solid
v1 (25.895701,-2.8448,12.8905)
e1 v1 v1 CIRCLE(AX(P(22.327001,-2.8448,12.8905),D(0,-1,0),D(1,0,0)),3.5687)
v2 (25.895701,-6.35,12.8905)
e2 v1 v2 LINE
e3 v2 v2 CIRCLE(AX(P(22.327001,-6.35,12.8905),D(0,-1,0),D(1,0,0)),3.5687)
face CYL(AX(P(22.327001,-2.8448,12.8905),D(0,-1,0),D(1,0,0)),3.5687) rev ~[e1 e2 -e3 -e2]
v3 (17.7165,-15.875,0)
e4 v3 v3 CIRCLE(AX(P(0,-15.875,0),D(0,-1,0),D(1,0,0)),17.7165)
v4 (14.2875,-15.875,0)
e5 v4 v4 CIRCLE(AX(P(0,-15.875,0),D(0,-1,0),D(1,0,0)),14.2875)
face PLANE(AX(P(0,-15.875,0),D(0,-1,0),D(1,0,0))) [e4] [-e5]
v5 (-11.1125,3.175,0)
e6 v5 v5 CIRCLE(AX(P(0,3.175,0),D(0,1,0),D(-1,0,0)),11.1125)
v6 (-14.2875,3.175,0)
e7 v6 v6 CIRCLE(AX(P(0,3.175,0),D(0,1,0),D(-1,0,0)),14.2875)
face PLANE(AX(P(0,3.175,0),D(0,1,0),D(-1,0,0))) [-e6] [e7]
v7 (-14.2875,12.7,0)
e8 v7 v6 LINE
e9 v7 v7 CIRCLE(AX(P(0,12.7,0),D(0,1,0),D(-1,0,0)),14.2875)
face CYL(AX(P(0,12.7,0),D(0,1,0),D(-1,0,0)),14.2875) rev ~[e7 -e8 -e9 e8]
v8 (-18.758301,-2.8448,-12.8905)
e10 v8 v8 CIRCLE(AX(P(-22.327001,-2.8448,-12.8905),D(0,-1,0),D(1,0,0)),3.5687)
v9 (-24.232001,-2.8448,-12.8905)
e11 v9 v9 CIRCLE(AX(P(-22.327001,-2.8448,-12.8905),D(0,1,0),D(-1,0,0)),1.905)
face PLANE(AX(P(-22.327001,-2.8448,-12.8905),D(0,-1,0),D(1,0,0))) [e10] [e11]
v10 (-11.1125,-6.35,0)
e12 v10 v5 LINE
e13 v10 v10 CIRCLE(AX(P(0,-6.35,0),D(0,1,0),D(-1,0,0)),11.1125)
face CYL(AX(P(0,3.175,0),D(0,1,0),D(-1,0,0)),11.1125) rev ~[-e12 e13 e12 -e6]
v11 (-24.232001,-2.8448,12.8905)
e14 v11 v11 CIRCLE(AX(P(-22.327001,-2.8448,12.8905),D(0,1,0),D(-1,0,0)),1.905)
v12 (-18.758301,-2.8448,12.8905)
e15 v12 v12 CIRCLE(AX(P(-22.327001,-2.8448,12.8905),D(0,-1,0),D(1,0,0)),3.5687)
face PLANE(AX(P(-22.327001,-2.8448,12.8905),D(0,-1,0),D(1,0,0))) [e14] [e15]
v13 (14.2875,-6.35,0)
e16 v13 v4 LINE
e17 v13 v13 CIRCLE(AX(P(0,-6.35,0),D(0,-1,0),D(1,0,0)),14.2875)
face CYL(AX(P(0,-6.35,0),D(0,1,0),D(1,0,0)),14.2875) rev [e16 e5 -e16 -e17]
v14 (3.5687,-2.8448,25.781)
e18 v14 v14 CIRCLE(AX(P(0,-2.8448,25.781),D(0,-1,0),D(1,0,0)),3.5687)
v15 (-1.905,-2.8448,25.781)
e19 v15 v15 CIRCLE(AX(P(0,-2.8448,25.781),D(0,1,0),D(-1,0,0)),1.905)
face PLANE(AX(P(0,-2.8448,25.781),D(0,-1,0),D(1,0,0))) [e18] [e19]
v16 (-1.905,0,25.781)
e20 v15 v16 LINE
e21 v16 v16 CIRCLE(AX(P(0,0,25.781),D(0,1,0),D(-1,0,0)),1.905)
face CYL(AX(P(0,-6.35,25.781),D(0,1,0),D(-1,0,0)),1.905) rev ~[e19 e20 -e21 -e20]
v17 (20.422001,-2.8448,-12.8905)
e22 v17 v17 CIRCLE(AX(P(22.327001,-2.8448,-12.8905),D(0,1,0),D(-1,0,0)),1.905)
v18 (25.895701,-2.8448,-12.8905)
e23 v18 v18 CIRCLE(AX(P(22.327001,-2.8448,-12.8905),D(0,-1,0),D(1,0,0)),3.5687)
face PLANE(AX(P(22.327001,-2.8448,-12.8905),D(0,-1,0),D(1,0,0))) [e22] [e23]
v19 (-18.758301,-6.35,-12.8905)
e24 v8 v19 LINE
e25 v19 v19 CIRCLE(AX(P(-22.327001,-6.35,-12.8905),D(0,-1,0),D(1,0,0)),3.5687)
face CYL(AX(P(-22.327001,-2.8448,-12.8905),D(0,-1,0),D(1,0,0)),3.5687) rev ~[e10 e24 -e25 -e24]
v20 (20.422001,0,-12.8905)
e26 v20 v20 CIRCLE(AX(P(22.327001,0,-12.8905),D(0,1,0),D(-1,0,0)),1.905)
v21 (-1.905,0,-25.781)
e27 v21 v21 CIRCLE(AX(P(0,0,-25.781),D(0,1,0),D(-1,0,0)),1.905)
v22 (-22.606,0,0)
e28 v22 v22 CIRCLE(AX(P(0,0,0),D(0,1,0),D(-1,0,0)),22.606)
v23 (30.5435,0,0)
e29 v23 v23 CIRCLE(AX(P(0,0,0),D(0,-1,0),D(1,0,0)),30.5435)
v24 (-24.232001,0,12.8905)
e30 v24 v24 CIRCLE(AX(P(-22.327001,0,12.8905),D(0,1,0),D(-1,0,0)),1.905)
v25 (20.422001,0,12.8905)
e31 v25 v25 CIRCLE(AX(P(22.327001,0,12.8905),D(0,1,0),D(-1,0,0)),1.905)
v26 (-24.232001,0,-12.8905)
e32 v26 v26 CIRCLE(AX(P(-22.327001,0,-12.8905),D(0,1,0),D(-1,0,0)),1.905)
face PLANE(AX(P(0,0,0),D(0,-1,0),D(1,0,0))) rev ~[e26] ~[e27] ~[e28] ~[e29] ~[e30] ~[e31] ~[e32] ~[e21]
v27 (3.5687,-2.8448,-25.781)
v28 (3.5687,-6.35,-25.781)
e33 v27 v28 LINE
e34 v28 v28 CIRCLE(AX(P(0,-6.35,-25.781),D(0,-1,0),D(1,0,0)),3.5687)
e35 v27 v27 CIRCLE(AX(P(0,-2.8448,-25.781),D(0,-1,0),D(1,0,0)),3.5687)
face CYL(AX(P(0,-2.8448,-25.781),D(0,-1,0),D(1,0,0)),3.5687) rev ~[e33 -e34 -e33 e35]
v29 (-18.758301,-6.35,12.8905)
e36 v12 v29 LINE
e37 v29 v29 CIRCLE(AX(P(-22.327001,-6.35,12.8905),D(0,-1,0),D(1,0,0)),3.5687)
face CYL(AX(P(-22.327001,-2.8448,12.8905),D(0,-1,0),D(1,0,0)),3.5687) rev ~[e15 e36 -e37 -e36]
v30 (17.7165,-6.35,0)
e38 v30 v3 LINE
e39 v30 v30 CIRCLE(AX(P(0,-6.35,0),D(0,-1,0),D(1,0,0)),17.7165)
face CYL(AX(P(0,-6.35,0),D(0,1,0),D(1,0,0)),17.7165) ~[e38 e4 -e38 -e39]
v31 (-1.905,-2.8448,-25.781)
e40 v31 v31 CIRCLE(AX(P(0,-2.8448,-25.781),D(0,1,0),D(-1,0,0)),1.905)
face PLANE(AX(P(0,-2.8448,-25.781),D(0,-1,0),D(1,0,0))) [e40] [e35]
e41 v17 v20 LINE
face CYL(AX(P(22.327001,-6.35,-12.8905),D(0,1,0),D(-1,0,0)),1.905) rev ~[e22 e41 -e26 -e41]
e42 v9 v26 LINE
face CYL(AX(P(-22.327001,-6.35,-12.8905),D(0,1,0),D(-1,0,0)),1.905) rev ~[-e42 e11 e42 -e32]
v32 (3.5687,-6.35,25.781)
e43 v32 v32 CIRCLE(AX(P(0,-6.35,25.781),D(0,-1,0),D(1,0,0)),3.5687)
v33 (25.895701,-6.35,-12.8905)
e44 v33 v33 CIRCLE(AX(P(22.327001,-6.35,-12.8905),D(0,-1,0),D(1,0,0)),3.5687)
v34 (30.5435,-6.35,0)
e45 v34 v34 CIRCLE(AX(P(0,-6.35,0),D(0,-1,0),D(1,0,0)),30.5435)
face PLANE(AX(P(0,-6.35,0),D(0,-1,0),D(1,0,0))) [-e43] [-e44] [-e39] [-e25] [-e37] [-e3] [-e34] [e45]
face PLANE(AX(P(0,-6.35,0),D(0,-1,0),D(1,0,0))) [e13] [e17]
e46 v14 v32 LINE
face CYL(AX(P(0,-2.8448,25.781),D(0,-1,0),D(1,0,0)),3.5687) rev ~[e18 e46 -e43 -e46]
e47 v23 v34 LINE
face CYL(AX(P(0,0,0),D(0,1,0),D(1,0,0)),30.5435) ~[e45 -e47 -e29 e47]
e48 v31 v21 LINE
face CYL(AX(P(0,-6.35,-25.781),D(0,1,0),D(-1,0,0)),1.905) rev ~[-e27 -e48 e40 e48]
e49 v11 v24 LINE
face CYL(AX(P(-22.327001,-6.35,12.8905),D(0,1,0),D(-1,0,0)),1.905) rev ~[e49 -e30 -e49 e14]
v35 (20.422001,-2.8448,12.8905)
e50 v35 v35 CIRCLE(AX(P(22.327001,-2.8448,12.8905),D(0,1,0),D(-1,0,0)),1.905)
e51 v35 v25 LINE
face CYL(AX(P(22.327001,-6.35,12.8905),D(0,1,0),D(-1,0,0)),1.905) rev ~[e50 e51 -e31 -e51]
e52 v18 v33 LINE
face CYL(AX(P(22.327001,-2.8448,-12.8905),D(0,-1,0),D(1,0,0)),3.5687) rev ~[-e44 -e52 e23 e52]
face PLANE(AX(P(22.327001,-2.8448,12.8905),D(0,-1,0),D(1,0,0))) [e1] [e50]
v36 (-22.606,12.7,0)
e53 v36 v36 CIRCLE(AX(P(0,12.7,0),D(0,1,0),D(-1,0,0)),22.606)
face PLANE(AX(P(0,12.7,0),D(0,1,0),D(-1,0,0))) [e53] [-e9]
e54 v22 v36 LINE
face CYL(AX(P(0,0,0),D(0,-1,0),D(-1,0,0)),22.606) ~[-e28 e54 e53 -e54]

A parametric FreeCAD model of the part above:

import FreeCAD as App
import Part
import Sketcher
Q = App.Units.Quantity

doc = App.newDocument("Part")
body = doc.addObject("PartDesign::Body", "Body")

# Sketch on XZ plane
sketch1 = body.newObject("Sketcher::SketchObject", "Sketch")
sketch1.AttachmentSupport = (doc.getObject("XZ_Plane"), [""])
sketch1.MapMode = "FlatFace"
sketch1.addGeometry(Part.Circle(App.Vector(0, 0, 0), App.Vector(0, 0, 1), 30.5435), False)
sketch1.addConstraint([
    Sketcher.Constraint("Coincident", 0, 3, -1, 1),
    Sketcher.Constraint("Diameter", 0, Q("2.405 in")),
])
pad1 = body.newObject("PartDesign::Pad", "Pad")
pad1.Profile = sketch1
pad1.Length = Q("0.25 in")

# Sketch on XZ plane
sketch2 = body.newObject("Sketcher::SketchObject", "Sketch001")
sketch2.AttachmentSupport = (doc.getObject("XZ_Plane"), [""])
sketch2.MapMode = "FlatFace"
sketch2.AttachmentOffset = App.Placement(App.Vector(0, 0, 0.25 * 25.4), App.Rotation())
sketch2.addGeometry([
    Part.Circle(App.Vector(0, 0, 0), App.Vector(0, 0, 1), 17.7165),
    Part.Circle(App.Vector(0, 0, 0), App.Vector(0, 0, 1), 14.2875),
], False)
sketch2.addConstraint([
    Sketcher.Constraint("Coincident", 0, 3, -1, 1),
    Sketcher.Constraint("Coincident", 1, 3, -1, 1),
    Sketcher.Constraint("Diameter", 0, Q("1.395 in")),
    Sketcher.Constraint("Diameter", 1, Q("1.125 in")),
])
pad2 = body.newObject("PartDesign::Pad", "Pad001")
pad2.Profile = sketch2
pad2.Length = Q("0.375 in")

# Sketch on XZ plane
sketch3 = body.newObject("Sketcher::SketchObject", "Sketch002")
sketch3.AttachmentSupport = (doc.getObject("XZ_Plane"), [""])
sketch3.MapMode = "FlatFace"
sketch3.addGeometry(Part.Circle(App.Vector(0, 0, 0), App.Vector(0, 0, 1), 22.606), False)
sketch3.addConstraint([
    Sketcher.Constraint("Coincident", 0, 3, -1, 1),
    Sketcher.Constraint("Diameter", 0, Q("1.78 in")),
])
pad3 = body.newObject("PartDesign::Pad", "Pad002")
pad3.Profile = sketch3
pad3.Length = Q("0.5 in")
pad3.Reversed = True

# Sketch on XZ plane
sketch4 = body.newObject("Sketcher::SketchObject", "Sketch003")
sketch4.AttachmentSupport = (doc.getObject("XZ_Plane"), [""])
sketch4.MapMode = "FlatFace"
sketch4.AttachmentOffset = App.Placement(App.Vector(0, 0, -0.5 * 25.4), App.Rotation())
sketch4.addGeometry(Part.Circle(App.Vector(0, 0, 0), App.Vector(0, 0, 1), 14.2875), False)
sketch4.addConstraint([
    Sketcher.Constraint("Coincident", 0, 3, -1, 1),
    Sketcher.Constraint("Diameter", 0, Q("1.125 in")),
])
pocket1 = body.newObject("PartDesign::Pocket", "Pocket")
pocket1.Profile = sketch4
pocket1.Length = Q("0.375 in")
pocket1.Reversed = True

# Sketch on XZ plane
sketch5 = body.newObject("Sketcher::SketchObject", "Sketch004")
sketch5.AttachmentSupport = (doc.getObject("XZ_Plane"), [""])
sketch5.MapMode = "FlatFace"
sketch5.AttachmentOffset = App.Placement(App.Vector(0, 0, -0.125 * 25.4), App.Rotation())
sketch5.addGeometry(Part.Circle(App.Vector(0, 0, 0), App.Vector(0, 0, 1), 11.1125), False)
sketch5.addConstraint([
    Sketcher.Constraint("Coincident", 0, 3, -1, 1),
    Sketcher.Constraint("Diameter", 0, Q("0.875 in")),
])
pocket2 = body.newObject("PartDesign::Pocket", "Pocket001")
pocket2.Profile = sketch5
pocket2.Length = Q("1.5 in")
pocket2.Midplane = True

# Sketch on XZ plane
sketch6 = body.newObject("Sketcher::SketchObject", "Sketch005")
sketch6.AttachmentSupport = (doc.getObject("XZ_Plane"), [""])
sketch6.MapMode = "FlatFace"
sketch6.AttachmentOffset = App.Placement(App.Vector(0, 0, 0.25 * 25.4), App.Rotation())
sketch6.addGeometry([
    Part.Circle(App.Vector(0, 25.781, 0), App.Vector(0, 0, 1), 1.905),  # 0
    Part.Circle(App.Vector(-22.327001, 12.8905, 0), App.Vector(0, 0, 1), 1.905),  # 1
    Part.Circle(App.Vector(-22.327001, -12.8905, 0), App.Vector(0, 0, 1), 1.905),  # 2
    Part.Circle(App.Vector(0, -25.781, 0), App.Vector(0, 0, 1), 1.905),  # 3
    Part.Circle(App.Vector(22.327001, -12.8905, 0), App.Vector(0, 0, 1), 1.905),  # 4
    Part.Circle(App.Vector(22.327001, 12.8905, 0), App.Vector(0, 0, 1), 1.905),  # 5
], False)
sketch6.addConstraint([
    Sketcher.Constraint("Equal", 0, 1),
    Sketcher.Constraint("Equal", 1, 2),
    Sketcher.Constraint("Equal", 2, 3),
    Sketcher.Constraint("Equal", 3, 4),
    Sketcher.Constraint("Equal", 4, 5),
    Sketcher.Constraint("Symmetric", 0, 3, 3, 3, -1, 1),
    Sketcher.Constraint("Symmetric", 1, 3, 4, 3, -1, 1),
    Sketcher.Constraint("Symmetric", 2, 3, 5, 3, -1, 1),
    Sketcher.Constraint("Symmetric", 2, 3, 4, 3, -2),
    Sketcher.Constraint("PointOnObject", 0, 3, -2),
    Sketcher.Constraint("Diameter", 0, Q("0.15 in")),
    Sketcher.Constraint("DistanceY", 3, 3, 0, 3, Q("2.03 in")),
    Sketcher.Constraint("DistanceY", 2, 3, 1, 3, Q("1.015 in")),
    Sketcher.Constraint("DistanceX", 1, 3, -1, 1, 22.327001),
])
doc.recompute()
hole = body.newObject("PartDesign::Hole", "Hole")
hole.Profile = sketch6
hole.ThreadType = "None"
hole.Diameter = Q("0.15 in")
hole.DepthType = "ThroughAll"
hole.HoleCutType = "Counterbore"
hole.HoleCutDiameter = Q("0.281 in")
hole.HoleCutDepth = Q("0.138 in")

doc.recompute()
